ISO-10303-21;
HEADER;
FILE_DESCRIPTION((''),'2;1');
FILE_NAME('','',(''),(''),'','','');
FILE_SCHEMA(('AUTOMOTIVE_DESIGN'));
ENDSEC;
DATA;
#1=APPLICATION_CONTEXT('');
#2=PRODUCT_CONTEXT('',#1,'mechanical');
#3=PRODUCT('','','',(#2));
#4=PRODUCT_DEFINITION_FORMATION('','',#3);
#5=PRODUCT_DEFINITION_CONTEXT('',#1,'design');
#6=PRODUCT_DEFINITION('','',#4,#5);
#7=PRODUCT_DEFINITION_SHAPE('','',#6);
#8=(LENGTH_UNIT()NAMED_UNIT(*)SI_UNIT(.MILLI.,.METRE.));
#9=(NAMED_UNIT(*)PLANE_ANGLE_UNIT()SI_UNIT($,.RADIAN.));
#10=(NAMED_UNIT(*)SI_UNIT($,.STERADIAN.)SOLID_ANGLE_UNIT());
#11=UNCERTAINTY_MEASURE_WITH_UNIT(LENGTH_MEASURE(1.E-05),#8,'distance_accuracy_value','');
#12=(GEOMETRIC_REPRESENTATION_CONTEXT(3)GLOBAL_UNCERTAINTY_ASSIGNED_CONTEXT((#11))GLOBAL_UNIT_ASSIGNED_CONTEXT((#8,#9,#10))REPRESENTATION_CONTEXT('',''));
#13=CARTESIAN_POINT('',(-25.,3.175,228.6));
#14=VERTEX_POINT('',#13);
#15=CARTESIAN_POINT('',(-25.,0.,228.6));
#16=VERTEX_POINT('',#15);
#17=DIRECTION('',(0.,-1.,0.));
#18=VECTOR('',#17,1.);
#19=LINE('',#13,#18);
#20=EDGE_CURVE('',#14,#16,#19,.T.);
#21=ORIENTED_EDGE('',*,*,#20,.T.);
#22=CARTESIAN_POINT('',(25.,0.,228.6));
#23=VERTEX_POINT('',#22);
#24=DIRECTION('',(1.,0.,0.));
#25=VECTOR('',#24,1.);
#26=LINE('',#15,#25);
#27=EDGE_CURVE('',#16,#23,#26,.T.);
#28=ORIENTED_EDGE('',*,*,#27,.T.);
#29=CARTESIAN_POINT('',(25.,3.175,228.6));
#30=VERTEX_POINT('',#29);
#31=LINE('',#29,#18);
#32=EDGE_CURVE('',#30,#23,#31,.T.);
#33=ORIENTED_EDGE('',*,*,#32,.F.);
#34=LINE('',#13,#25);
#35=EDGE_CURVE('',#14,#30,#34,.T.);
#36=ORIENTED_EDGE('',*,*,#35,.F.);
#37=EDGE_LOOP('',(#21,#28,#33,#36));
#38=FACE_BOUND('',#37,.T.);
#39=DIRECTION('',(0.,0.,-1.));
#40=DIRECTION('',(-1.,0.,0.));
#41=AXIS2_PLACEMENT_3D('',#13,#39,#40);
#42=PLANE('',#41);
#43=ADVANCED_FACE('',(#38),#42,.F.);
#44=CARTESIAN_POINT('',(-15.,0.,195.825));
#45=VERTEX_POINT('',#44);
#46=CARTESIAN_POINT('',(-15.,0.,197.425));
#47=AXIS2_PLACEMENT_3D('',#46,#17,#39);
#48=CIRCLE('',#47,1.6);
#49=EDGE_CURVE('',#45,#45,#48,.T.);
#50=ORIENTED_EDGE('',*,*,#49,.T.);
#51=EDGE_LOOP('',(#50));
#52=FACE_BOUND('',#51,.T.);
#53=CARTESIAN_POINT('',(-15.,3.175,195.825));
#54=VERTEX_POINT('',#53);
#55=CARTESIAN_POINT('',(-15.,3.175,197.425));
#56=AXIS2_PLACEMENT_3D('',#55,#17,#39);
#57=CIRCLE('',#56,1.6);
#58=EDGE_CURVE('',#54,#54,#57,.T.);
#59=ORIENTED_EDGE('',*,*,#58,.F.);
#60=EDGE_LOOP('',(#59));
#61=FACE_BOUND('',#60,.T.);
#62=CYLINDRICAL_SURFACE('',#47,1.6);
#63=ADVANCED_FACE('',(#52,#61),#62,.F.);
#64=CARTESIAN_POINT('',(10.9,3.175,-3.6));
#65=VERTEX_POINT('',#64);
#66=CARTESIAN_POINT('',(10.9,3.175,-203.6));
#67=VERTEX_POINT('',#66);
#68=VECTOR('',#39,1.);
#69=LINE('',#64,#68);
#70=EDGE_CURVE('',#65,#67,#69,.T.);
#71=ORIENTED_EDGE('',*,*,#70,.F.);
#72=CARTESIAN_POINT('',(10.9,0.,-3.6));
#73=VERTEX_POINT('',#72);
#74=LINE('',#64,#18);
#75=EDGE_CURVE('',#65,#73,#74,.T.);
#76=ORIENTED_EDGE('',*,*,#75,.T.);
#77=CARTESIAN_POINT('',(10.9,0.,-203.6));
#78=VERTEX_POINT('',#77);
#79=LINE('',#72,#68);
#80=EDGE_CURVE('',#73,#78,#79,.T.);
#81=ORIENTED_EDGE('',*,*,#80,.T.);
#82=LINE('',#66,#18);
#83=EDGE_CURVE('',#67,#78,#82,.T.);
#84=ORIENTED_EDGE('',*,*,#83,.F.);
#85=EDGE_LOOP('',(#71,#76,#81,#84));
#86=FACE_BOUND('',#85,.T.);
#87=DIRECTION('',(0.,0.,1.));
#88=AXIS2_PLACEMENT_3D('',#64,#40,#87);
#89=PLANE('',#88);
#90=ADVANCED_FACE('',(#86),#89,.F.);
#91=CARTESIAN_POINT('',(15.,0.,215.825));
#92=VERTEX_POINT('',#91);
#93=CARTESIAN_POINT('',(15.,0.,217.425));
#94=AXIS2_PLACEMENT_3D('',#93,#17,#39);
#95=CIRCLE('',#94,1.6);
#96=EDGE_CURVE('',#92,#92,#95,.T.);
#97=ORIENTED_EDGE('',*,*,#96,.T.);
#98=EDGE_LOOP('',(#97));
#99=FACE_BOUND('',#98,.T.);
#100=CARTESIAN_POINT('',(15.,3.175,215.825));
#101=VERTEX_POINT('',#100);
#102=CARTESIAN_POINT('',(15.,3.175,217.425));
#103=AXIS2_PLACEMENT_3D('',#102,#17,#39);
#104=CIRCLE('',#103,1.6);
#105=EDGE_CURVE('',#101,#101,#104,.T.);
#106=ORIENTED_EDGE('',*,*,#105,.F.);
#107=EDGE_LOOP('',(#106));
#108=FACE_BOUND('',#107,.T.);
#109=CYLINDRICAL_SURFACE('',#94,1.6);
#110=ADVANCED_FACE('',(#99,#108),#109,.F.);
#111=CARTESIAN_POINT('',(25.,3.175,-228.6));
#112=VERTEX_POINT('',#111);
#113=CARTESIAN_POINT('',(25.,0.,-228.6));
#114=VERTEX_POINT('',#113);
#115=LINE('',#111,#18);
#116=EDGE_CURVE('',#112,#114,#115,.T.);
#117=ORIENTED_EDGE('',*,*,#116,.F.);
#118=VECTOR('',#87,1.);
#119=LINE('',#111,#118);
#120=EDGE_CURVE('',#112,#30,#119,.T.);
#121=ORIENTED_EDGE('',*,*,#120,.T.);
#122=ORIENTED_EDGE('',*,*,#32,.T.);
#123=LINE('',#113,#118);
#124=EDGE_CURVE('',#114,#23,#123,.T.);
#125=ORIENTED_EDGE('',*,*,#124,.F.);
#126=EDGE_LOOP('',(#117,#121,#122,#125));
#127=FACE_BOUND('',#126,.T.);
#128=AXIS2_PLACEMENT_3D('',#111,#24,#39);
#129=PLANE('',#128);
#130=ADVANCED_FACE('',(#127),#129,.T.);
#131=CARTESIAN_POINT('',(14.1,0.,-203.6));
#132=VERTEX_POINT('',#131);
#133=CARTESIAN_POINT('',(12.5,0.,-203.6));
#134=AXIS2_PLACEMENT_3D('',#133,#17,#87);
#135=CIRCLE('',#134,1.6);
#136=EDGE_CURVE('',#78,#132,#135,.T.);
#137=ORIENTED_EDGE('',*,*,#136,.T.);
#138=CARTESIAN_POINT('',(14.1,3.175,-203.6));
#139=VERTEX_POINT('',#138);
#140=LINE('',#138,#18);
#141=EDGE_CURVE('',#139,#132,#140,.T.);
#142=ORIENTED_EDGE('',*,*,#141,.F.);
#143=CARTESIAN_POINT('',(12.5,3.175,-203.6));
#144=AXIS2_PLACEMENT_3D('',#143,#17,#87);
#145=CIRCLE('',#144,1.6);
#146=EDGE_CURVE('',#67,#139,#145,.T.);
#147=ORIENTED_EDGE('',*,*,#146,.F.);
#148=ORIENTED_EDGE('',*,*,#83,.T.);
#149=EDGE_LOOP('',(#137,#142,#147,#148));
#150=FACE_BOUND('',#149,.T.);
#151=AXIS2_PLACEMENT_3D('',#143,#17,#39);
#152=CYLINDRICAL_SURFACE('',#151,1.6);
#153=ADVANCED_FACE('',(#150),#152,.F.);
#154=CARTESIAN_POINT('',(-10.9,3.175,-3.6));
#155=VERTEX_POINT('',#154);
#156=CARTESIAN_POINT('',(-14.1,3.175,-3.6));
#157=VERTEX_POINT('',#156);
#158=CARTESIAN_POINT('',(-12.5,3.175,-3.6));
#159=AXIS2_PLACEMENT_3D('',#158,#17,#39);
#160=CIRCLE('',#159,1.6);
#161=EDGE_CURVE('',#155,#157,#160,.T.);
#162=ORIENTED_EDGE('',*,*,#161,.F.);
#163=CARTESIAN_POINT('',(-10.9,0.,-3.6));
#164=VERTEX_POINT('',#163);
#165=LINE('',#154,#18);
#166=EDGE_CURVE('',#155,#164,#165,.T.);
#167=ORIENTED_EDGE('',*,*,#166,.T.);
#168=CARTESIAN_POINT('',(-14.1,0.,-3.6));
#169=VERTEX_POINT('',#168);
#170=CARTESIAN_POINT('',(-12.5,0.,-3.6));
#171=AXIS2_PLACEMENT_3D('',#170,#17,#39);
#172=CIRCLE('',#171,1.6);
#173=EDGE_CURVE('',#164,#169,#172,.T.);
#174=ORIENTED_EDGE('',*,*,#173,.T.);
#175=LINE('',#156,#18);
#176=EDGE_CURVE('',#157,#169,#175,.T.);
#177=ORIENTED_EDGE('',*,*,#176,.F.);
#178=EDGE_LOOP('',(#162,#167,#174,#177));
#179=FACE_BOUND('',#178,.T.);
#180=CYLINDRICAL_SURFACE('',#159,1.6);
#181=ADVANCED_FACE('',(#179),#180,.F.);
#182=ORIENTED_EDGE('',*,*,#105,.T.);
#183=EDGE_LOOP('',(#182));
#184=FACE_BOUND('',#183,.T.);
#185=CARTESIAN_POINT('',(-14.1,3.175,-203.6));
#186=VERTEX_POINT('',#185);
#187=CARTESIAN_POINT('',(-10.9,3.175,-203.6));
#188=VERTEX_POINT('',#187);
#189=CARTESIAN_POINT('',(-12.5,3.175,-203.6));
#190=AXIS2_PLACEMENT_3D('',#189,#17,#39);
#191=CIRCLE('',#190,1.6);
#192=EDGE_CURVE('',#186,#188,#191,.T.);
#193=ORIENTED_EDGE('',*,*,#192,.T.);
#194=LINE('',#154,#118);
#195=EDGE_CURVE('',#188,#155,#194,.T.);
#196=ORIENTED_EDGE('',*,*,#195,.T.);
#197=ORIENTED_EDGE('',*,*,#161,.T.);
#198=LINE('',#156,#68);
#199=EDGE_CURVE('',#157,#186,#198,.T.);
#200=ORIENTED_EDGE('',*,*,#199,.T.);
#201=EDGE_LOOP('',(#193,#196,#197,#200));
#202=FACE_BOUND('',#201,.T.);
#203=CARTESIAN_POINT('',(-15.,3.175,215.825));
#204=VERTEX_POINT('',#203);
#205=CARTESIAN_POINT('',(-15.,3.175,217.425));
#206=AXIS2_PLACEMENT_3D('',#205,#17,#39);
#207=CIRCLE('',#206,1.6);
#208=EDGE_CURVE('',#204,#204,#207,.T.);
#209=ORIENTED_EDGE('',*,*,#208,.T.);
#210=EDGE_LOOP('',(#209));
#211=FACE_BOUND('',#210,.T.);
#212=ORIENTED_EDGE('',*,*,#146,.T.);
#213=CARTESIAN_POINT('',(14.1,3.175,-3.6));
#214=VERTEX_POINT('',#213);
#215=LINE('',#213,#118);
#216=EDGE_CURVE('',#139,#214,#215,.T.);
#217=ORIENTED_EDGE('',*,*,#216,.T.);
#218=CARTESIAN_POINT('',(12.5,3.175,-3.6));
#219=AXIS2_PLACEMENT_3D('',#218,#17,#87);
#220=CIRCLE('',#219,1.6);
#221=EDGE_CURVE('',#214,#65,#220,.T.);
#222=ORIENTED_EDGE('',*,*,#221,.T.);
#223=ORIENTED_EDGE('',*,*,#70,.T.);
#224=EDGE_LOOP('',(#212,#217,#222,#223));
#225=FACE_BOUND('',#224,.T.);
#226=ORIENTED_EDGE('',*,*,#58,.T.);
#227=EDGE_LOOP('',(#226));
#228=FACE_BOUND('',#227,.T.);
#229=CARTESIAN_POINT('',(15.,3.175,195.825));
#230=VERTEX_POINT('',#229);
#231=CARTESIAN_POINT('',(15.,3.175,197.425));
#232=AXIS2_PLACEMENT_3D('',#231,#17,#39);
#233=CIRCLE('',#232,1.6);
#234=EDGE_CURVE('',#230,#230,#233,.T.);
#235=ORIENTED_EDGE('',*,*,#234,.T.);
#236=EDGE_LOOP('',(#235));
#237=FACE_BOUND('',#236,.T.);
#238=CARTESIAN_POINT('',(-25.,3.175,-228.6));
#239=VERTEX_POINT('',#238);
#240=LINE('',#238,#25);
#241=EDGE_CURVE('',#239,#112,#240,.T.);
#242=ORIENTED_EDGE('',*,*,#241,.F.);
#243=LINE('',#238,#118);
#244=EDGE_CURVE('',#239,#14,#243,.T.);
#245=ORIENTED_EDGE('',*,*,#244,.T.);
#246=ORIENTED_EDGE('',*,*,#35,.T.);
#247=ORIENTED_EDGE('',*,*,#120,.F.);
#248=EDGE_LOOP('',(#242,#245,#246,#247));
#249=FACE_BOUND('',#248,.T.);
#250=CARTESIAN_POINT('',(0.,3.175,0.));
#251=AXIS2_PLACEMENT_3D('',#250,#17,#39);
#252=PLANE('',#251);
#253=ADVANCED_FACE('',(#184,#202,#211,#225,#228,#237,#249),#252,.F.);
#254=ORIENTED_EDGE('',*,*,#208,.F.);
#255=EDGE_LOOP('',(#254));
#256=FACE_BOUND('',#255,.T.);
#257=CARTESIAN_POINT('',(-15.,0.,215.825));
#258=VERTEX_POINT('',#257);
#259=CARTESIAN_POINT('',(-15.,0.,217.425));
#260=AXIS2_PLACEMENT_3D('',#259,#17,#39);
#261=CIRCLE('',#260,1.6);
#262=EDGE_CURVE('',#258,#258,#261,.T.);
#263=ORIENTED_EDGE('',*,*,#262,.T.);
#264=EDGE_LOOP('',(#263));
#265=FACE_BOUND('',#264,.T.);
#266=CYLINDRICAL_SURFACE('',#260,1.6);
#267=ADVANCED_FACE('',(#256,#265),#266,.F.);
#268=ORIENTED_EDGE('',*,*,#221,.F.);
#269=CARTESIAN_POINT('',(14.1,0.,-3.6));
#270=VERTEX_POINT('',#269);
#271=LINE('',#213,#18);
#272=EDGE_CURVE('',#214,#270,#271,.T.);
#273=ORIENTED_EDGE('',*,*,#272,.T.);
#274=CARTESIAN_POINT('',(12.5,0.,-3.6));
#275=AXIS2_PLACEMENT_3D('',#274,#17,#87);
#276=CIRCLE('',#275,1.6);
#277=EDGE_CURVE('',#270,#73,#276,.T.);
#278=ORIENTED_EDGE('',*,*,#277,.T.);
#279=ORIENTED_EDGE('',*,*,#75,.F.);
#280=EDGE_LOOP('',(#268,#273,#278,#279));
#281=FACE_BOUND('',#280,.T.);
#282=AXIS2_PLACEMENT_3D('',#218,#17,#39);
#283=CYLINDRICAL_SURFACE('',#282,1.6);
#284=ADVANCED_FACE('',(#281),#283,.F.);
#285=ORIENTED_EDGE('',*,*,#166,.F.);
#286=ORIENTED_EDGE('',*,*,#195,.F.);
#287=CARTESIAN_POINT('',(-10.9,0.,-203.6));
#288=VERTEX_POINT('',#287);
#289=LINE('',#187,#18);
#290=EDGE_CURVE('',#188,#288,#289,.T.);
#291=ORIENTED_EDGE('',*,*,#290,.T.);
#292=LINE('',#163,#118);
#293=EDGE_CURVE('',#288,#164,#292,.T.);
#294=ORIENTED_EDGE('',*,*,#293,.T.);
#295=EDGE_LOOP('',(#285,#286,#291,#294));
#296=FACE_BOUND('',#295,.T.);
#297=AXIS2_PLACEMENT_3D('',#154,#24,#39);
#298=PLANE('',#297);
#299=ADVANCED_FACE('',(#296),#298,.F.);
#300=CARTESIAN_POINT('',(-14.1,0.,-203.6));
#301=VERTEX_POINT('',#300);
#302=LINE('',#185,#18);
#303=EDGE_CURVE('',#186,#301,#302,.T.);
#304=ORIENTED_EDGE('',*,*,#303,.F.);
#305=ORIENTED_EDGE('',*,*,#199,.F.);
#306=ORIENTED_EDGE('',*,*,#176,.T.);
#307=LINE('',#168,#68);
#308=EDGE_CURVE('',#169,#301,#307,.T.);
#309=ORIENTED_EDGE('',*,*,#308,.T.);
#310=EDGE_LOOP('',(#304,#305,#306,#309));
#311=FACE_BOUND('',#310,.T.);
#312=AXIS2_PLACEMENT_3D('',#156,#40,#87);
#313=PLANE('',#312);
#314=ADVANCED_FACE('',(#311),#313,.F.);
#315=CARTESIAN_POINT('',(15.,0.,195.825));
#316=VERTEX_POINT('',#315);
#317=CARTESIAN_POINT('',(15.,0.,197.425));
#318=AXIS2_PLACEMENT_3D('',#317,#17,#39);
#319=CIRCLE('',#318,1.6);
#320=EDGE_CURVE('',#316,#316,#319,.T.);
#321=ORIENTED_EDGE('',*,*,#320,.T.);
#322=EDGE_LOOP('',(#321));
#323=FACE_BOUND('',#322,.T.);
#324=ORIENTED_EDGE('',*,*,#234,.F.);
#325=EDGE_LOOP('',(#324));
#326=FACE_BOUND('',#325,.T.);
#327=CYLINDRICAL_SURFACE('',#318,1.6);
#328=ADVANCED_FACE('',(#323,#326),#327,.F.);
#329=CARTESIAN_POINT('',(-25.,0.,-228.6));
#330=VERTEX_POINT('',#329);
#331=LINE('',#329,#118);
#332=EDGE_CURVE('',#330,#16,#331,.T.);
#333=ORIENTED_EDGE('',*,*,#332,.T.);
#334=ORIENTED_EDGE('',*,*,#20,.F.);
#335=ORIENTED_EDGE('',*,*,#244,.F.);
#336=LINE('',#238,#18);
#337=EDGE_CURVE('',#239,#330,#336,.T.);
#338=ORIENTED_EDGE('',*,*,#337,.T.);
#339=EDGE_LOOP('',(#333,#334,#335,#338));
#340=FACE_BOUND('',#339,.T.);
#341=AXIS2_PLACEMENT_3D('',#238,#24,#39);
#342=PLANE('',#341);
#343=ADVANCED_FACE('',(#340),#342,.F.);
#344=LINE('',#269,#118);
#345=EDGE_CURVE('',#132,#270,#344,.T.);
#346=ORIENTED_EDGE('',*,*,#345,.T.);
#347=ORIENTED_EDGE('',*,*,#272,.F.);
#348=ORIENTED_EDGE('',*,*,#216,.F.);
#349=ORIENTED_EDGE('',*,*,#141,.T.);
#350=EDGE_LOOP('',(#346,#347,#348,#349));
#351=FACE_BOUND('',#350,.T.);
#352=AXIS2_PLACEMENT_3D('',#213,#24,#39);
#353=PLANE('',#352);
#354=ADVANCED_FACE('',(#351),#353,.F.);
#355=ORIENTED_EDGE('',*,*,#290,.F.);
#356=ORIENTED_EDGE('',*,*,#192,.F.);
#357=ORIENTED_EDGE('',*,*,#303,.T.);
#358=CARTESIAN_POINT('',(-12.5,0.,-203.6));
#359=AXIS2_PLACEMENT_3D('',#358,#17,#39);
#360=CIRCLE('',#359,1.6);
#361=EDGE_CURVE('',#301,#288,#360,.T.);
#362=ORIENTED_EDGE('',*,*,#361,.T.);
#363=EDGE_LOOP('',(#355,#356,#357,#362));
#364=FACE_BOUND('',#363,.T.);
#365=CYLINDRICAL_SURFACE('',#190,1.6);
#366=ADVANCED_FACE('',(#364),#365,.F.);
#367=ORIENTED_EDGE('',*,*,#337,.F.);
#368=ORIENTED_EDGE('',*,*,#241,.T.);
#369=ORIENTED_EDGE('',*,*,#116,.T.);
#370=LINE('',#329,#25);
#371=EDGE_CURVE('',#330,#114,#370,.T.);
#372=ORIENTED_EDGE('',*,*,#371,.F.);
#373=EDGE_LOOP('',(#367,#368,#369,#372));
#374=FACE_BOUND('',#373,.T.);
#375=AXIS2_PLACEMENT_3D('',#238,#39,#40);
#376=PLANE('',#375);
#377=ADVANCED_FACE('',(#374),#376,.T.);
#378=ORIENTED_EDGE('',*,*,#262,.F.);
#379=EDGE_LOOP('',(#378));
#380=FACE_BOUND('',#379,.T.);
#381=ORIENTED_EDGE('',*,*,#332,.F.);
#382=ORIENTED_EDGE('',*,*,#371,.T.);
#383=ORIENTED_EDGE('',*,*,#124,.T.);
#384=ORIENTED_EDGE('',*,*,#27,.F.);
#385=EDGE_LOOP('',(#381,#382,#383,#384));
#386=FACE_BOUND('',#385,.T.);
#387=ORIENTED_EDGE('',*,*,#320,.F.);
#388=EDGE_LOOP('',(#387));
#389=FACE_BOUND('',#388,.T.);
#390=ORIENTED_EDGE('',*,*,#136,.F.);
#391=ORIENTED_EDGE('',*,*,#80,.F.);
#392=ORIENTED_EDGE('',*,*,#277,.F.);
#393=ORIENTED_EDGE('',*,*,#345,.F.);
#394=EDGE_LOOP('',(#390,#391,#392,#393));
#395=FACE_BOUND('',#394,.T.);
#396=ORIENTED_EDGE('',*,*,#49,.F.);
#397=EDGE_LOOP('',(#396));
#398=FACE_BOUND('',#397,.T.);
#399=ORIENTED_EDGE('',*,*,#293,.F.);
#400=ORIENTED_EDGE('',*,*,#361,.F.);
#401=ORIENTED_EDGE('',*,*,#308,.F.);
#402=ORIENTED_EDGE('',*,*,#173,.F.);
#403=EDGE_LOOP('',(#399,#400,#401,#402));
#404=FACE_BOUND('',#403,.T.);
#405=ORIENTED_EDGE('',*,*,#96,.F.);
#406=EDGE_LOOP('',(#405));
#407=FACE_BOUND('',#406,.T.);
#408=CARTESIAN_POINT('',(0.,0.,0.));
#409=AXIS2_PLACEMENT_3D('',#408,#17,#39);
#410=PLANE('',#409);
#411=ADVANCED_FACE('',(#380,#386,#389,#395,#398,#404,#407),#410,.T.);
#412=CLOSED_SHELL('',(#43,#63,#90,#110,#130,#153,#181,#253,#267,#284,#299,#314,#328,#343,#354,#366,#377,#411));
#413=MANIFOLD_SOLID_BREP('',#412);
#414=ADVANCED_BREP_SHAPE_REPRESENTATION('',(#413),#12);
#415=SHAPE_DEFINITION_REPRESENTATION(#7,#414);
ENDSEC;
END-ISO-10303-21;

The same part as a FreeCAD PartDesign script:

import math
import FreeCAD as App
import Part
import Sketcher

doc = App.newDocument("Part")
body = doc.addObject("PartDesign::Body", "Body")

sketch1 = body.newObject("Sketcher::SketchObject", "Sketch")
sketch1.AttachmentSupport = (doc.getObject("XZ_Plane"), [""])
sketch1.MapMode = "FlatFace"
sketch1.addGeometry([
    Part.LineSegment(App.Vector(-25, -228.6, 0), App.Vector(-25, 228.6, 0)),
    Part.LineSegment(App.Vector(-25, 228.6, 0), App.Vector(25, 228.6, 0)),
    Part.LineSegment(App.Vector(25, 228.6, 0), App.Vector(25, -228.6, 0)),
    Part.LineSegment(App.Vector(25, -228.6, 0), App.Vector(-25, -228.6, 0)),
], False)
sketch1.addConstraint([
    Sketcher.Constraint("Coincident", 0, 2, 1, 1),
    Sketcher.Constraint("Coincident", 1, 2, 2, 1),
    Sketcher.Constraint("Coincident", 2, 2, 3, 1),
    Sketcher.Constraint("Coincident", 3, 2, 0, 1),
    Sketcher.Constraint("Vertical", 0),
    Sketcher.Constraint("Horizontal", 1),
    Sketcher.Constraint("Vertical", 2),
    Sketcher.Constraint("Horizontal", 3),
    Sketcher.Constraint("Symmetric", 0, 2, 2, 2, -1, 1),
    Sketcher.Constraint("DistanceX", 1, 1, 1, 2, 50.0),
    Sketcher.Constraint("DistanceY", 0, 1, 0, 2, 457.2),
])
pad1 = body.newObject("PartDesign::Pad", "Pad")
pad1.Profile = sketch1
pad1.Length = 3.175
pad1.Reversed = True

sketch2 = body.newObject("Sketcher::SketchObject", "Sketch001")
sketch2.AttachmentSupport = (doc.getObject("XZ_Plane"), [""])
sketch2.MapMode = "FlatFace"
sketch2.addGeometry([
    Part.LineSegment(App.Vector(-10.9, -203.6, 0), App.Vector(-10.9, -3.6, 0)),
    Part.ArcOfCircle(Part.Circle(App.Vector(-12.5, -3.6, 0), App.Vector(0, 0, 1), 1.6), math.radians(0), math.radians(180)),
    Part.LineSegment(App.Vector(-14.1, -3.6, 0), App.Vector(-14.1, -203.6, 0)),
    Part.ArcOfCircle(Part.Circle(App.Vector(-12.5, -203.6, 0), App.Vector(0, 0, 1), 1.6), math.radians(180), math.radians(360)),
    Part.LineSegment(App.Vector(10.9, -3.6, 0), App.Vector(10.9, -203.6, 0)),
    Part.ArcOfCircle(Part.Circle(App.Vector(12.5, -203.6, 0), App.Vector(0, 0, 1), 1.6), math.radians(180), math.radians(360)),
    Part.LineSegment(App.Vector(14.1, -203.6, 0), App.Vector(14.1, -3.6, 0)),
    Part.ArcOfCircle(Part.Circle(App.Vector(12.5, -3.6, 0), App.Vector(0, 0, 1), 1.6), math.radians(0), math.radians(180)),
], False)
sketch2.addConstraint([
    Sketcher.Constraint("Tangent", 0, 2, 1, 1),
    Sketcher.Constraint("Tangent", 1, 2, 2, 1),
    Sketcher.Constraint("Tangent", 2, 2, 3, 1),
    Sketcher.Constraint("Tangent", 3, 2, 0, 1),
    Sketcher.Constraint("Tangent", 4, 2, 5, 1),
    Sketcher.Constraint("Tangent", 5, 2, 6, 1),
    Sketcher.Constraint("Tangent", 6, 2, 7, 1),
    Sketcher.Constraint("Tangent", 7, 2, 4, 1),
    Sketcher.Constraint("Vertical", 0),
    Sketcher.Constraint("Vertical", 2),
    Sketcher.Constraint("Vertical", 4),
    Sketcher.Constraint("Vertical", 6),
    Sketcher.Constraint("Equal", 3, 5),
    Sketcher.Constraint("Symmetric", 3, 3, 5, 3, -2),
    Sketcher.Constraint("Horizontal", 1, 3, 7, 3),
    Sketcher.Constraint("Radius", 1, 1.6),
    Sketcher.Constraint("DistanceY", 0, 1, 0, 2, 200.0),
    Sketcher.Constraint("DistanceX", 3, 3, 5, 3, 25.0),
    Sketcher.Constraint("DistanceY", 1, 3, -1, 1, 3.6),
])
pocket1 = body.newObject("PartDesign::Pocket", "Pocket")
pocket1.Profile = sketch2
pocket1.Type = "ThroughAll"

sketch3 = body.newObject("Sketcher::SketchObject", "Sketch002")
sketch3.AttachmentSupport = (doc.getObject("XZ_Plane"), [""])
sketch3.MapMode = "FlatFace"
sketch3.addGeometry([
    Part.Circle(App.Vector(-15, 217.425, 0), App.Vector(0, 0, 1), 1.6),
    Part.Circle(App.Vector(15, 197.425, 0), App.Vector(0, 0, 1), 1.6),
    Part.Circle(App.Vector(15, 217.425, 0), App.Vector(0, 0, 1), 1.6),
    Part.Circle(App.Vector(-15, 197.425, 0), App.Vector(0, 0, 1), 1.6),
], False)
sketch3.addConstraint([
    Sketcher.Constraint("Equal", 0, 1),
    Sketcher.Constraint("Equal", 1, 2),
    Sketcher.Constraint("Equal", 2, 3),
    Sketcher.Constraint("Symmetric", 0, 3, 2, 3, -2),
    Sketcher.Constraint("Symmetric", 1, 3, 3, 3, -2),
    Sketcher.Constraint("Vertical", 1, 3, 2, 3),
    Sketcher.Constraint("Diameter", 0, 3.2),
    Sketcher.Constraint("DistanceX", 0, 3, -1, 1, 15.0),
    Sketcher.Constraint("DistanceY", 1, 3, 0, 3, 20.0),
    Sketcher.Constraint("DistanceY", -1, 1, 0, 3, 217.425),
])
doc.recompute()
hole = body.newObject("PartDesign::Hole", "Hole")
hole.Profile = sketch3
hole.ThreadType = "None"
hole.Diameter = 3.2
hole.DepthType = "ThroughAll"

doc.recompute()
